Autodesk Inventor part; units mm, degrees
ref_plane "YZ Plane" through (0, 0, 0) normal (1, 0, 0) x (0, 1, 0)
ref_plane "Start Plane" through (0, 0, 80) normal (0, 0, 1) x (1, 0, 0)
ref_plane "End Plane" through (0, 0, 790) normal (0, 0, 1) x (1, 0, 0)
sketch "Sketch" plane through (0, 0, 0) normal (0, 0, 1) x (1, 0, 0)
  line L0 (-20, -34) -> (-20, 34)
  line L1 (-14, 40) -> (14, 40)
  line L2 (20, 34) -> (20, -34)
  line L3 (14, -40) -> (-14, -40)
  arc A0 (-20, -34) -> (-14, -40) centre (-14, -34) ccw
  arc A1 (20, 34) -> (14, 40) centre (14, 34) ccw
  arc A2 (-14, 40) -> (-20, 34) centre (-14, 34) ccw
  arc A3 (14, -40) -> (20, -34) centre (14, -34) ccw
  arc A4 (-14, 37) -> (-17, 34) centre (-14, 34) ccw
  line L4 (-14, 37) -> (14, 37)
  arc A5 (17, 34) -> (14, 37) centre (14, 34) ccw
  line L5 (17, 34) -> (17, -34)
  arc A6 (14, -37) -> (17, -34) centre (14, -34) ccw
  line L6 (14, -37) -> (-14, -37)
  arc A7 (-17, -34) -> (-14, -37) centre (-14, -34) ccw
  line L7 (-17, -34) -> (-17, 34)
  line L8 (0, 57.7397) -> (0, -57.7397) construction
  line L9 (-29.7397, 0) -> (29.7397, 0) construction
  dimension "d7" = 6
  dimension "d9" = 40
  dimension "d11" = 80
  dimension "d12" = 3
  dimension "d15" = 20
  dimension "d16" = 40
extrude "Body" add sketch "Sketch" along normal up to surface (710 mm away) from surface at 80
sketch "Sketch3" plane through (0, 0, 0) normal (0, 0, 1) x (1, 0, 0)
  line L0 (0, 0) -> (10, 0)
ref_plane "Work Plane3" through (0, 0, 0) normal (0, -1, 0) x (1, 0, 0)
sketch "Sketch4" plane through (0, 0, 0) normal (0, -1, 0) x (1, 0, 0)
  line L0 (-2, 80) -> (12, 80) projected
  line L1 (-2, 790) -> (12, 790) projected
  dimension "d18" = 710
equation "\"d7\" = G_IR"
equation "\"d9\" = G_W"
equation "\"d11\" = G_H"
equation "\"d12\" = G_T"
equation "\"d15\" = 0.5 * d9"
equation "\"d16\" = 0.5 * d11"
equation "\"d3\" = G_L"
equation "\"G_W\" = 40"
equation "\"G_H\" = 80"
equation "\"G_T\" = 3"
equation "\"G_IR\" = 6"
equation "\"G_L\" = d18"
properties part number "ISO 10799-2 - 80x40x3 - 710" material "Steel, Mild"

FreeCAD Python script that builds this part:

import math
import FreeCAD as App
import Part
import Sketcher
from FreeCAD import Vector
Q = App.Units.Quantity

doc = App.newDocument("Part")
body = doc.addObject("PartDesign::Body", "Body")

# Sketch on XY plane
sketch1 = body.newObject("Sketcher::SketchObject", "Sketch")
sketch1.AttachmentSupport = (doc.getObject("XY_Plane"), [""])
sketch1.MapMode = "FlatFace"
sketch1.AttachmentOffset = App.Placement(Vector(0, 0, 80), App.Rotation())
sketch1.addGeometry([
    Part.LineSegment(Vector(-20, 34, 0), Vector(-20, -34, 0)),  # 0
    Part.ArcOfCircle(Part.Circle(Vector(-14, -34, 0), Vector(0, 0, 1), 6), math.radians(180), math.radians(270)),  # 1
    Part.LineSegment(Vector(-14, -40, 0), Vector(14, -40, 0)),  # 2
    Part.ArcOfCircle(Part.Circle(Vector(14, -34, 0), Vector(0, 0, 1), 6), math.radians(-90), math.radians(0)),  # 3
    Part.LineSegment(Vector(20, -34, 0), Vector(20, 34, 0)),  # 4
    Part.ArcOfCircle(Part.Circle(Vector(14, 34, 0), Vector(0, 0, 1), 6), math.radians(0), math.radians(90)),  # 5
    Part.LineSegment(Vector(14, 40, 0), Vector(-14, 40, 0)),  # 6
    Part.ArcOfCircle(Part.Circle(Vector(-14, 34, 0), Vector(0, 0, 1), 6), math.radians(90), math.radians(180)),  # 7
    Part.ArcOfCircle(Part.Circle(Vector(-14, 34, 0), Vector(0, 0, 1), 3), math.radians(90), math.radians(180)),  # 8
    Part.LineSegment(Vector(-14, 37, 0), Vector(14, 37, 0)),  # 9
    Part.ArcOfCircle(Part.Circle(Vector(14, 34, 0), Vector(0, 0, 1), 3), math.radians(0), math.radians(90)),  # 10
    Part.LineSegment(Vector(17, 34, 0), Vector(17, -34, 0)),  # 11
    Part.ArcOfCircle(Part.Circle(Vector(14, -34, 0), Vector(0, 0, 1), 3), math.radians(-90), math.radians(0)),  # 12
    Part.LineSegment(Vector(14, -37, 0), Vector(-14, -37, 0)),  # 13
    Part.ArcOfCircle(Part.Circle(Vector(-14, -34, 0), Vector(0, 0, 1), 3), math.radians(180), math.radians(270)),  # 14
    Part.LineSegment(Vector(-17, -34, 0), Vector(-17, 34, 0)),  # 15
], False)
sketch1.addConstraint([
    Sketcher.Constraint("Tangent", 0, 2, 1, 1),
    Sketcher.Constraint("Tangent", 1, 2, 2, 1),
    Sketcher.Constraint("Tangent", 2, 2, 3, 1),
    Sketcher.Constraint("Tangent", 3, 2, 4, 1),
    Sketcher.Constraint("Tangent", 4, 2, 5, 1),
    Sketcher.Constraint("Tangent", 5, 2, 6, 1),
    Sketcher.Constraint("Tangent", 6, 2, 7, 1),
    Sketcher.Constraint("Tangent", 7, 2, 0, 1),
    Sketcher.Constraint("Tangent", 8, 1, 9, 1),
    Sketcher.Constraint("Tangent", 9, 2, 10, 2),
    Sketcher.Constraint("Tangent", 10, 1, 11, 1),
    Sketcher.Constraint("Tangent", 11, 2, 12, 2),
    Sketcher.Constraint("Tangent", 12, 1, 13, 1),
    Sketcher.Constraint("Tangent", 13, 2, 14, 2),
    Sketcher.Constraint("Tangent", 14, 1, 15, 1),
    Sketcher.Constraint("Tangent", 15, 2, 8, 2),
    Sketcher.Constraint("Vertical", 0),
    Sketcher.Constraint("Horizontal", 2),
    Sketcher.Constraint("Vertical", 4),
    Sketcher.Constraint("Horizontal", 6),
    Sketcher.Constraint("Horizontal", 9),
    Sketcher.Constraint("Vertical", 11),
    Sketcher.Constraint("Horizontal", 13),
    Sketcher.Constraint("Vertical", 15),
    Sketcher.Constraint("Coincident", 8, 3, 7, 3),
    Sketcher.Constraint("Coincident", 10, 3, 5, 3),
    Sketcher.Constraint("Coincident", 12, 3, 3, 3),
    Sketcher.Constraint("Equal", 1, 3),
    Sketcher.Constraint("Equal", 3, 5),
    Sketcher.Constraint("Equal", 5, 7),
    Sketcher.Constraint("Equal", 12, 14),
    Sketcher.Constraint("Symmetric", 1, 3, 5, 3, -1, 1),
    Sketcher.Constraint("Radius", 1, Q("6 mm")),
    Sketcher.Constraint("Radius", 8, Q("3 mm")),
    Sketcher.Constraint("DistanceX", 0, 2, -1, 1, Q("20 mm")),
    Sketcher.Constraint("DistanceY", 1, 2, -1, 1, Q("40 mm")),
])
pad1 = body.newObject("PartDesign::Pad", "Pad")
pad1.Profile = sketch1
pad1.Length = 710

doc.recompute()
